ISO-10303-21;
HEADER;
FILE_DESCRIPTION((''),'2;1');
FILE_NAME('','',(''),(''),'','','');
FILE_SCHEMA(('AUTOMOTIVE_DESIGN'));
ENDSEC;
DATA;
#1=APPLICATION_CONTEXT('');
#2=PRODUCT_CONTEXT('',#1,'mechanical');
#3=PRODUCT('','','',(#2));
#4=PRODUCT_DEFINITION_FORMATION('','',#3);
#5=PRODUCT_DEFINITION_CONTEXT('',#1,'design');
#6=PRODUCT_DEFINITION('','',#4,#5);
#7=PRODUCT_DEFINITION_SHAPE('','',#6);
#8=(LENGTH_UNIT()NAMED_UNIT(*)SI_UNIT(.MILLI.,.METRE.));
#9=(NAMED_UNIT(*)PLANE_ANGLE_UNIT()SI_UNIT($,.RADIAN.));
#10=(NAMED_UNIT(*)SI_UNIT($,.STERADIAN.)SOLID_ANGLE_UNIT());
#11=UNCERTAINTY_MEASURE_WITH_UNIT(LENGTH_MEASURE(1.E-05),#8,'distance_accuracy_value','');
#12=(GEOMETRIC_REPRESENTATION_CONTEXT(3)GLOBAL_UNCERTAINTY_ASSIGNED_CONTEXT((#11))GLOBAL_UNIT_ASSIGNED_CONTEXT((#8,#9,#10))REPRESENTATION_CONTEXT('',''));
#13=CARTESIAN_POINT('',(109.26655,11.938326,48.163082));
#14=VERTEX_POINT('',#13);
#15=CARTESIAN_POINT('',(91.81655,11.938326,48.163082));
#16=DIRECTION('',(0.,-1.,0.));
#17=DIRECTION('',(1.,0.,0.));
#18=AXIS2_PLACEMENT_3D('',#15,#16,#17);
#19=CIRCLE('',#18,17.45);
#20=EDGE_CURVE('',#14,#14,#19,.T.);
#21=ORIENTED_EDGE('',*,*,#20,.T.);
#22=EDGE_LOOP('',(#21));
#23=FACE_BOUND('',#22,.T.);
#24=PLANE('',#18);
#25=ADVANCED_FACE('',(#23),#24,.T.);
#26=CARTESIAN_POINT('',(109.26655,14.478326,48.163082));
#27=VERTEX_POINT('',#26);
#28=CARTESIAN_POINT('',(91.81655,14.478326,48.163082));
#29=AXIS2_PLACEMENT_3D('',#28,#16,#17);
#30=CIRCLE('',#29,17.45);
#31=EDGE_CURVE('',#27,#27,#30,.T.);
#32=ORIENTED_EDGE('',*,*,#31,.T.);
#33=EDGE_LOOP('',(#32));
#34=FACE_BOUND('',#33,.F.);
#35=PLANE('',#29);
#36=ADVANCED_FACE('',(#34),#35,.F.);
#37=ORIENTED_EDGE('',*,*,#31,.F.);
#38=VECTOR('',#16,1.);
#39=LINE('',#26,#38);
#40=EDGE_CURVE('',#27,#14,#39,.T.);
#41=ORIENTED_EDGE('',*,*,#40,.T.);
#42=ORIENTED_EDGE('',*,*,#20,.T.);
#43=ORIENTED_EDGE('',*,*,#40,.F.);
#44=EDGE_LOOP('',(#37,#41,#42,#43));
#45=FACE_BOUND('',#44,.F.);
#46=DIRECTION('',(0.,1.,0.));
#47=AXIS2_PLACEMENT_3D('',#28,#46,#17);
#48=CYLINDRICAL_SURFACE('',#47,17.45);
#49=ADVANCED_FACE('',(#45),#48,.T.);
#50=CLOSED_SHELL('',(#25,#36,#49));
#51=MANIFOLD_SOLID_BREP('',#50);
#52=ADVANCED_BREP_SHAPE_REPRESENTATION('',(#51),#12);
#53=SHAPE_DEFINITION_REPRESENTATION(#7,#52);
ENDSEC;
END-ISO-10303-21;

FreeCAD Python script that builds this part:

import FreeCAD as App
import Part
import Sketcher

V = App.Vector
Q = App.Units.Quantity

doc = App.newDocument("Part")
body = doc.addObject("PartDesign::Body", "Body")

sketch1 = doc.addObject("Sketcher::SketchObject", "Sketch")
body.addObject(sketch1)
sketch1.AttachmentSupport = (doc.XZ_Plane, [""])
sketch1.MapMode = "FlatFace"
sketch1.AttachmentOffset = App.Placement(V(0, 0, -14.478326), App.Rotation())
sketch1.addGeometry(Part.Circle(V(92, 48, 0), V(0, 0, 1), 17), False)
sketch1.addConstraint([
    Sketcher.Constraint("Diameter", 0, Q("34.9 mm")),
    Sketcher.Constraint("DistanceX", -1, 1, 0, 3, Q("91.81655 mm")),
    Sketcher.Constraint("DistanceY", -1, 1, 0, 3, Q("48.163082 mm")),
])
pad1 = doc.addObject("PartDesign::Pad", "Pad")
body.addObject(pad1)
pad1.Profile = sketch1
pad1.Length = 2.54

doc.recompute()
